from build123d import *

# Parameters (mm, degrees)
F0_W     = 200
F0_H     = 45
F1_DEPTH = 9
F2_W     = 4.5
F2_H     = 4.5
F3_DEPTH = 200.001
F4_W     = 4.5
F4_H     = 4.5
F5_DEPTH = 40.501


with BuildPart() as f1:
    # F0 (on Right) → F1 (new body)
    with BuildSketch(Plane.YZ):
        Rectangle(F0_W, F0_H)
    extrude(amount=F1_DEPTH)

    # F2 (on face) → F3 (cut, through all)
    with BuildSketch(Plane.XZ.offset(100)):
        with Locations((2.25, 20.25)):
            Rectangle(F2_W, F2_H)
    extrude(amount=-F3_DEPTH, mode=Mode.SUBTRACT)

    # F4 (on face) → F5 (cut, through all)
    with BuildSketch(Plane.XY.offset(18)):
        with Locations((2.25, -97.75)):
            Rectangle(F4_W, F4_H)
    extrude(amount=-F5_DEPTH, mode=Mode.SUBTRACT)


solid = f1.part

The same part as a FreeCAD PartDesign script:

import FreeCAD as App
import Part
import Sketcher
from FreeCAD import Vector


def add_polygon(sketch, points):
    """Adds a closed chain of lines whose ends are joined by coincident constraints."""
    first, n = sketch.GeometryCount, len(points)
    for a, b in zip(points, points[1:] + points[:1]):
        sketch.addGeometry(Part.LineSegment(App.Vector(*a, 0), App.Vector(*b, 0)), False)
    for i in range(n):
        sketch.addConstraint(Sketcher.Constraint("Coincident", first + i, 2, first + (i + 1) % n, 1))

doc = App.newDocument("Part")
body = doc.addObject("PartDesign::Body", "Body")

sketch1 = doc.addObject("Sketcher::SketchObject", "Sketch")
body.addObject(sketch1)
sketch1.AttachmentSupport = (doc.YZ_Plane, [""])
sketch1.MapMode = "FlatFace"
add_polygon(sketch1, [(-100, 22), (-100, -22), (100, -22), (100, 22)])
sketch1.addConstraint(Sketcher.Constraint("Vertical", 0))
sketch1.addConstraint(Sketcher.Constraint("Horizontal", 1))
sketch1.addConstraint(Sketcher.Constraint("Vertical", 2))
sketch1.addConstraint(Sketcher.Constraint("Horizontal", 3))
sketch1.addConstraint(Sketcher.Constraint("Symmetric", 0, 2, 2, 2, -1, 1))
sketch1.addConstraint(Sketcher.Constraint("DistanceX", 1, 1, 1, 2, 200.0))
sketch1.addConstraint(Sketcher.Constraint("DistanceY", 0, 2, 0, 1, 45.0))
pad1 = doc.addObject("PartDesign::Pad", "Pad")
body.addObject(pad1)
pad1.Profile = sketch1
pad1.Length = 9

sketch2 = doc.addObject("Sketcher::SketchObject", "Sketch001")
body.addObject(sketch2)
sketch2.AttachmentSupport = (doc.XZ_Plane, [""])
sketch2.MapMode = "FlatFace"
sketch2.AttachmentOffset = App.Placement(Vector(0, 0, 100), App.Rotation())
add_polygon(sketch2, [(0, 22.5), (0, 18), (4.5, 18), (4.5, 22.5)])
sketch2.addConstraint(Sketcher.Constraint("Vertical", 0))
sketch2.addConstraint(Sketcher.Constraint("Horizontal", 1))
sketch2.addConstraint(Sketcher.Constraint("Vertical", 2))
sketch2.addConstraint(Sketcher.Constraint("Horizontal", 3))
sketch2.addConstraint(Sketcher.Constraint("PointOnObject", 0, 2, -2))
sketch2.addConstraint(Sketcher.Constraint("Equal", 3, 0))
sketch2.addConstraint(Sketcher.Constraint("DistanceX", 1, 1, 1, 2, 4.5))
sketch2.addConstraint(Sketcher.Constraint("DistanceY", -1, 1, 0, 2, 18.0))
pocket1 = doc.addObject("PartDesign::Pocket", "Pocket")
body.addObject(pocket1)
pocket1.Profile = sketch2
pocket1.Type = "ThroughAll"

sketch3 = doc.addObject("Sketcher::SketchObject", "Sketch002")
body.addObject(sketch3)
sketch3.AttachmentSupport = (doc.XY_Plane, [""])
sketch3.MapMode = "FlatFace"
sketch3.AttachmentOffset = App.Placement(Vector(0, 0, 18), App.Rotation())
add_polygon(sketch3, [(0, -95.5), (0, -100), (4.5, -100), (4.5, -95.5)])
sketch3.addConstraint(Sketcher.Constraint("Vertical", 0))
sketch3.addConstraint(Sketcher.Constraint("Horizontal", 1))
sketch3.addConstraint(Sketcher.Constraint("Vertical", 2))
sketch3.addConstraint(Sketcher.Constraint("Horizontal", 3))
sketch3.addConstraint(Sketcher.Constraint("PointOnObject", 0, 2, -2))
sketch3.addConstraint(Sketcher.Constraint("Equal", 3, 0))
sketch3.addConstraint(Sketcher.Constraint("DistanceX", 1, 1, 1, 2, 4.5))
sketch3.addConstraint(Sketcher.Constraint("DistanceY", 0, 2, -1, 1, 100.0))
pocket2 = doc.addObject("PartDesign::Pocket", "Pocket001")
body.addObject(pocket2)
pocket2.Profile = sketch3
pocket2.Type = "ThroughAll"

doc.recompute()
